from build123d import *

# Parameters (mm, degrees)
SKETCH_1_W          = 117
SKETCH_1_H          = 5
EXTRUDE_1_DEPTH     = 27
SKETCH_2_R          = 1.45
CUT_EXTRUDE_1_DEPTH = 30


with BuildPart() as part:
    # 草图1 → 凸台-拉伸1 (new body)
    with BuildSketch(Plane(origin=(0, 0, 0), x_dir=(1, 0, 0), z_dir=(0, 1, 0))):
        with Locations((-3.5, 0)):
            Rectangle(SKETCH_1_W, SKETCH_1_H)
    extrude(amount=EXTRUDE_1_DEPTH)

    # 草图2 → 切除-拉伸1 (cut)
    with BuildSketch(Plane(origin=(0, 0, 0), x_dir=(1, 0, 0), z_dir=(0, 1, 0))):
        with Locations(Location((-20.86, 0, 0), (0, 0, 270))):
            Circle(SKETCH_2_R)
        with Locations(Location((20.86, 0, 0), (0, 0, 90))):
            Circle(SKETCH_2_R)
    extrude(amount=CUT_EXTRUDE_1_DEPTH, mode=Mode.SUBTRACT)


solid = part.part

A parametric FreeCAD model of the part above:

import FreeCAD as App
import Part
import Sketcher
from FreeCAD import Vector

doc = App.newDocument("Part")
params = doc.addObject("Spreadsheet::Sheet", "Params")
for row, (alias, value) in enumerate([
    ("sketch1_width", "117 mm"),
    ("sketch1_height", "5 mm"),
    ("pad1_length", "27 mm"),
    ("sketch2_diameter", "2.9 mm"),
    ("pocket1_length", "30 mm"),
], start=1):
    params.set(f"A{row}", alias)
    params.set(f"B{row}", "=" + value)
    params.setAlias(f"B{row}", alias)

body = doc.addObject("PartDesign::Body", "Body")

sketch1 = doc.addObject("Sketcher::SketchObject", "Sketch")
body.addObject(sketch1)
sketch1.AttachmentSupport = (doc.XZ_Plane, [""])
sketch1.MapMode = "FlatFace"
sketch1.addGeometry(Part.LineSegment(Vector(-62, -2.5, 0), Vector(-62, 2.5, 0)), False)
sketch1.addGeometry(Part.LineSegment(Vector(-62, 2.5, 0), Vector(55, 2.5, 0)), False)
sketch1.addGeometry(Part.LineSegment(Vector(55, 2.5, 0), Vector(55, -2.5, 0)), False)
sketch1.addGeometry(Part.LineSegment(Vector(55, -2.5, 0), Vector(-62, -2.5, 0)), False)
sketch1.addConstraint(Sketcher.Constraint("Coincident", 0, 2, 1, 1))
sketch1.addConstraint(Sketcher.Constraint("Coincident", 1, 2, 2, 1))
sketch1.addConstraint(Sketcher.Constraint("Coincident", 2, 2, 3, 1))
sketch1.addConstraint(Sketcher.Constraint("Coincident", 3, 2, 0, 1))
sketch1.addConstraint(Sketcher.Constraint("Vertical", 0))
sketch1.addConstraint(Sketcher.Constraint("Horizontal", 1))
sketch1.addConstraint(Sketcher.Constraint("Vertical", 2))
sketch1.addConstraint(Sketcher.Constraint("Horizontal", 3))
sketch1.addConstraint(Sketcher.Constraint("DistanceX", 1, 1, 1, 2, 117.0))
sketch1.addConstraint(Sketcher.Constraint("DistanceY", 0, 1, 0, 2, 5.0))
sketch1.addConstraint(Sketcher.Constraint("DistanceX", 0, 2, -1, 1, 62.0))
sketch1.addConstraint(Sketcher.Constraint("DistanceY", -1, 1, 0, 2, 2.5))
sketch1.setExpression("Constraints[8]", "Params.sketch1_width")
sketch1.setExpression("Constraints[9]", "Params.sketch1_height")
pad1 = doc.addObject("PartDesign::Pad", "Pad")
body.addObject(pad1)
pad1.Profile = sketch1
pad1.setExpression("Length", "Params.pad1_length")
pad1.Reversed = True

sketch2 = doc.addObject("Sketcher::SketchObject", "Sketch001")
body.addObject(sketch2)
sketch2.AttachmentSupport = (doc.XZ_Plane, [""])
sketch2.MapMode = "FlatFace"
sketch2.addGeometry(Part.Circle(Vector(-20.86, 0, 0), Vector(0, 0, 1), 1.45), False)
sketch2.addGeometry(Part.Circle(Vector(20.86, 0, 0), Vector(0, 0, 1), 1.45), False)
sketch2.addConstraint(Sketcher.Constraint("Equal", 0, 1))
sketch2.addConstraint(Sketcher.Constraint("Symmetric", 0, 3, 1, 3, -1, 1))
sketch2.addConstraint(Sketcher.Constraint("PointOnObject", 0, 3, -1))
sketch2.addConstraint(Sketcher.Constraint("Diameter", 0, 2.9))
sketch2.addConstraint(Sketcher.Constraint("DistanceX", 0, 3, -1, 1, 20.86))
sketch2.setExpression("Constraints[3]", "Params.sketch2_diameter")
pocket1 = doc.addObject("PartDesign::Pocket", "Pocket")
body.addObject(pocket1)
pocket1.Profile = sketch2
pocket1.setExpression("Length", "Params.pocket1_length")

doc.recompute()
